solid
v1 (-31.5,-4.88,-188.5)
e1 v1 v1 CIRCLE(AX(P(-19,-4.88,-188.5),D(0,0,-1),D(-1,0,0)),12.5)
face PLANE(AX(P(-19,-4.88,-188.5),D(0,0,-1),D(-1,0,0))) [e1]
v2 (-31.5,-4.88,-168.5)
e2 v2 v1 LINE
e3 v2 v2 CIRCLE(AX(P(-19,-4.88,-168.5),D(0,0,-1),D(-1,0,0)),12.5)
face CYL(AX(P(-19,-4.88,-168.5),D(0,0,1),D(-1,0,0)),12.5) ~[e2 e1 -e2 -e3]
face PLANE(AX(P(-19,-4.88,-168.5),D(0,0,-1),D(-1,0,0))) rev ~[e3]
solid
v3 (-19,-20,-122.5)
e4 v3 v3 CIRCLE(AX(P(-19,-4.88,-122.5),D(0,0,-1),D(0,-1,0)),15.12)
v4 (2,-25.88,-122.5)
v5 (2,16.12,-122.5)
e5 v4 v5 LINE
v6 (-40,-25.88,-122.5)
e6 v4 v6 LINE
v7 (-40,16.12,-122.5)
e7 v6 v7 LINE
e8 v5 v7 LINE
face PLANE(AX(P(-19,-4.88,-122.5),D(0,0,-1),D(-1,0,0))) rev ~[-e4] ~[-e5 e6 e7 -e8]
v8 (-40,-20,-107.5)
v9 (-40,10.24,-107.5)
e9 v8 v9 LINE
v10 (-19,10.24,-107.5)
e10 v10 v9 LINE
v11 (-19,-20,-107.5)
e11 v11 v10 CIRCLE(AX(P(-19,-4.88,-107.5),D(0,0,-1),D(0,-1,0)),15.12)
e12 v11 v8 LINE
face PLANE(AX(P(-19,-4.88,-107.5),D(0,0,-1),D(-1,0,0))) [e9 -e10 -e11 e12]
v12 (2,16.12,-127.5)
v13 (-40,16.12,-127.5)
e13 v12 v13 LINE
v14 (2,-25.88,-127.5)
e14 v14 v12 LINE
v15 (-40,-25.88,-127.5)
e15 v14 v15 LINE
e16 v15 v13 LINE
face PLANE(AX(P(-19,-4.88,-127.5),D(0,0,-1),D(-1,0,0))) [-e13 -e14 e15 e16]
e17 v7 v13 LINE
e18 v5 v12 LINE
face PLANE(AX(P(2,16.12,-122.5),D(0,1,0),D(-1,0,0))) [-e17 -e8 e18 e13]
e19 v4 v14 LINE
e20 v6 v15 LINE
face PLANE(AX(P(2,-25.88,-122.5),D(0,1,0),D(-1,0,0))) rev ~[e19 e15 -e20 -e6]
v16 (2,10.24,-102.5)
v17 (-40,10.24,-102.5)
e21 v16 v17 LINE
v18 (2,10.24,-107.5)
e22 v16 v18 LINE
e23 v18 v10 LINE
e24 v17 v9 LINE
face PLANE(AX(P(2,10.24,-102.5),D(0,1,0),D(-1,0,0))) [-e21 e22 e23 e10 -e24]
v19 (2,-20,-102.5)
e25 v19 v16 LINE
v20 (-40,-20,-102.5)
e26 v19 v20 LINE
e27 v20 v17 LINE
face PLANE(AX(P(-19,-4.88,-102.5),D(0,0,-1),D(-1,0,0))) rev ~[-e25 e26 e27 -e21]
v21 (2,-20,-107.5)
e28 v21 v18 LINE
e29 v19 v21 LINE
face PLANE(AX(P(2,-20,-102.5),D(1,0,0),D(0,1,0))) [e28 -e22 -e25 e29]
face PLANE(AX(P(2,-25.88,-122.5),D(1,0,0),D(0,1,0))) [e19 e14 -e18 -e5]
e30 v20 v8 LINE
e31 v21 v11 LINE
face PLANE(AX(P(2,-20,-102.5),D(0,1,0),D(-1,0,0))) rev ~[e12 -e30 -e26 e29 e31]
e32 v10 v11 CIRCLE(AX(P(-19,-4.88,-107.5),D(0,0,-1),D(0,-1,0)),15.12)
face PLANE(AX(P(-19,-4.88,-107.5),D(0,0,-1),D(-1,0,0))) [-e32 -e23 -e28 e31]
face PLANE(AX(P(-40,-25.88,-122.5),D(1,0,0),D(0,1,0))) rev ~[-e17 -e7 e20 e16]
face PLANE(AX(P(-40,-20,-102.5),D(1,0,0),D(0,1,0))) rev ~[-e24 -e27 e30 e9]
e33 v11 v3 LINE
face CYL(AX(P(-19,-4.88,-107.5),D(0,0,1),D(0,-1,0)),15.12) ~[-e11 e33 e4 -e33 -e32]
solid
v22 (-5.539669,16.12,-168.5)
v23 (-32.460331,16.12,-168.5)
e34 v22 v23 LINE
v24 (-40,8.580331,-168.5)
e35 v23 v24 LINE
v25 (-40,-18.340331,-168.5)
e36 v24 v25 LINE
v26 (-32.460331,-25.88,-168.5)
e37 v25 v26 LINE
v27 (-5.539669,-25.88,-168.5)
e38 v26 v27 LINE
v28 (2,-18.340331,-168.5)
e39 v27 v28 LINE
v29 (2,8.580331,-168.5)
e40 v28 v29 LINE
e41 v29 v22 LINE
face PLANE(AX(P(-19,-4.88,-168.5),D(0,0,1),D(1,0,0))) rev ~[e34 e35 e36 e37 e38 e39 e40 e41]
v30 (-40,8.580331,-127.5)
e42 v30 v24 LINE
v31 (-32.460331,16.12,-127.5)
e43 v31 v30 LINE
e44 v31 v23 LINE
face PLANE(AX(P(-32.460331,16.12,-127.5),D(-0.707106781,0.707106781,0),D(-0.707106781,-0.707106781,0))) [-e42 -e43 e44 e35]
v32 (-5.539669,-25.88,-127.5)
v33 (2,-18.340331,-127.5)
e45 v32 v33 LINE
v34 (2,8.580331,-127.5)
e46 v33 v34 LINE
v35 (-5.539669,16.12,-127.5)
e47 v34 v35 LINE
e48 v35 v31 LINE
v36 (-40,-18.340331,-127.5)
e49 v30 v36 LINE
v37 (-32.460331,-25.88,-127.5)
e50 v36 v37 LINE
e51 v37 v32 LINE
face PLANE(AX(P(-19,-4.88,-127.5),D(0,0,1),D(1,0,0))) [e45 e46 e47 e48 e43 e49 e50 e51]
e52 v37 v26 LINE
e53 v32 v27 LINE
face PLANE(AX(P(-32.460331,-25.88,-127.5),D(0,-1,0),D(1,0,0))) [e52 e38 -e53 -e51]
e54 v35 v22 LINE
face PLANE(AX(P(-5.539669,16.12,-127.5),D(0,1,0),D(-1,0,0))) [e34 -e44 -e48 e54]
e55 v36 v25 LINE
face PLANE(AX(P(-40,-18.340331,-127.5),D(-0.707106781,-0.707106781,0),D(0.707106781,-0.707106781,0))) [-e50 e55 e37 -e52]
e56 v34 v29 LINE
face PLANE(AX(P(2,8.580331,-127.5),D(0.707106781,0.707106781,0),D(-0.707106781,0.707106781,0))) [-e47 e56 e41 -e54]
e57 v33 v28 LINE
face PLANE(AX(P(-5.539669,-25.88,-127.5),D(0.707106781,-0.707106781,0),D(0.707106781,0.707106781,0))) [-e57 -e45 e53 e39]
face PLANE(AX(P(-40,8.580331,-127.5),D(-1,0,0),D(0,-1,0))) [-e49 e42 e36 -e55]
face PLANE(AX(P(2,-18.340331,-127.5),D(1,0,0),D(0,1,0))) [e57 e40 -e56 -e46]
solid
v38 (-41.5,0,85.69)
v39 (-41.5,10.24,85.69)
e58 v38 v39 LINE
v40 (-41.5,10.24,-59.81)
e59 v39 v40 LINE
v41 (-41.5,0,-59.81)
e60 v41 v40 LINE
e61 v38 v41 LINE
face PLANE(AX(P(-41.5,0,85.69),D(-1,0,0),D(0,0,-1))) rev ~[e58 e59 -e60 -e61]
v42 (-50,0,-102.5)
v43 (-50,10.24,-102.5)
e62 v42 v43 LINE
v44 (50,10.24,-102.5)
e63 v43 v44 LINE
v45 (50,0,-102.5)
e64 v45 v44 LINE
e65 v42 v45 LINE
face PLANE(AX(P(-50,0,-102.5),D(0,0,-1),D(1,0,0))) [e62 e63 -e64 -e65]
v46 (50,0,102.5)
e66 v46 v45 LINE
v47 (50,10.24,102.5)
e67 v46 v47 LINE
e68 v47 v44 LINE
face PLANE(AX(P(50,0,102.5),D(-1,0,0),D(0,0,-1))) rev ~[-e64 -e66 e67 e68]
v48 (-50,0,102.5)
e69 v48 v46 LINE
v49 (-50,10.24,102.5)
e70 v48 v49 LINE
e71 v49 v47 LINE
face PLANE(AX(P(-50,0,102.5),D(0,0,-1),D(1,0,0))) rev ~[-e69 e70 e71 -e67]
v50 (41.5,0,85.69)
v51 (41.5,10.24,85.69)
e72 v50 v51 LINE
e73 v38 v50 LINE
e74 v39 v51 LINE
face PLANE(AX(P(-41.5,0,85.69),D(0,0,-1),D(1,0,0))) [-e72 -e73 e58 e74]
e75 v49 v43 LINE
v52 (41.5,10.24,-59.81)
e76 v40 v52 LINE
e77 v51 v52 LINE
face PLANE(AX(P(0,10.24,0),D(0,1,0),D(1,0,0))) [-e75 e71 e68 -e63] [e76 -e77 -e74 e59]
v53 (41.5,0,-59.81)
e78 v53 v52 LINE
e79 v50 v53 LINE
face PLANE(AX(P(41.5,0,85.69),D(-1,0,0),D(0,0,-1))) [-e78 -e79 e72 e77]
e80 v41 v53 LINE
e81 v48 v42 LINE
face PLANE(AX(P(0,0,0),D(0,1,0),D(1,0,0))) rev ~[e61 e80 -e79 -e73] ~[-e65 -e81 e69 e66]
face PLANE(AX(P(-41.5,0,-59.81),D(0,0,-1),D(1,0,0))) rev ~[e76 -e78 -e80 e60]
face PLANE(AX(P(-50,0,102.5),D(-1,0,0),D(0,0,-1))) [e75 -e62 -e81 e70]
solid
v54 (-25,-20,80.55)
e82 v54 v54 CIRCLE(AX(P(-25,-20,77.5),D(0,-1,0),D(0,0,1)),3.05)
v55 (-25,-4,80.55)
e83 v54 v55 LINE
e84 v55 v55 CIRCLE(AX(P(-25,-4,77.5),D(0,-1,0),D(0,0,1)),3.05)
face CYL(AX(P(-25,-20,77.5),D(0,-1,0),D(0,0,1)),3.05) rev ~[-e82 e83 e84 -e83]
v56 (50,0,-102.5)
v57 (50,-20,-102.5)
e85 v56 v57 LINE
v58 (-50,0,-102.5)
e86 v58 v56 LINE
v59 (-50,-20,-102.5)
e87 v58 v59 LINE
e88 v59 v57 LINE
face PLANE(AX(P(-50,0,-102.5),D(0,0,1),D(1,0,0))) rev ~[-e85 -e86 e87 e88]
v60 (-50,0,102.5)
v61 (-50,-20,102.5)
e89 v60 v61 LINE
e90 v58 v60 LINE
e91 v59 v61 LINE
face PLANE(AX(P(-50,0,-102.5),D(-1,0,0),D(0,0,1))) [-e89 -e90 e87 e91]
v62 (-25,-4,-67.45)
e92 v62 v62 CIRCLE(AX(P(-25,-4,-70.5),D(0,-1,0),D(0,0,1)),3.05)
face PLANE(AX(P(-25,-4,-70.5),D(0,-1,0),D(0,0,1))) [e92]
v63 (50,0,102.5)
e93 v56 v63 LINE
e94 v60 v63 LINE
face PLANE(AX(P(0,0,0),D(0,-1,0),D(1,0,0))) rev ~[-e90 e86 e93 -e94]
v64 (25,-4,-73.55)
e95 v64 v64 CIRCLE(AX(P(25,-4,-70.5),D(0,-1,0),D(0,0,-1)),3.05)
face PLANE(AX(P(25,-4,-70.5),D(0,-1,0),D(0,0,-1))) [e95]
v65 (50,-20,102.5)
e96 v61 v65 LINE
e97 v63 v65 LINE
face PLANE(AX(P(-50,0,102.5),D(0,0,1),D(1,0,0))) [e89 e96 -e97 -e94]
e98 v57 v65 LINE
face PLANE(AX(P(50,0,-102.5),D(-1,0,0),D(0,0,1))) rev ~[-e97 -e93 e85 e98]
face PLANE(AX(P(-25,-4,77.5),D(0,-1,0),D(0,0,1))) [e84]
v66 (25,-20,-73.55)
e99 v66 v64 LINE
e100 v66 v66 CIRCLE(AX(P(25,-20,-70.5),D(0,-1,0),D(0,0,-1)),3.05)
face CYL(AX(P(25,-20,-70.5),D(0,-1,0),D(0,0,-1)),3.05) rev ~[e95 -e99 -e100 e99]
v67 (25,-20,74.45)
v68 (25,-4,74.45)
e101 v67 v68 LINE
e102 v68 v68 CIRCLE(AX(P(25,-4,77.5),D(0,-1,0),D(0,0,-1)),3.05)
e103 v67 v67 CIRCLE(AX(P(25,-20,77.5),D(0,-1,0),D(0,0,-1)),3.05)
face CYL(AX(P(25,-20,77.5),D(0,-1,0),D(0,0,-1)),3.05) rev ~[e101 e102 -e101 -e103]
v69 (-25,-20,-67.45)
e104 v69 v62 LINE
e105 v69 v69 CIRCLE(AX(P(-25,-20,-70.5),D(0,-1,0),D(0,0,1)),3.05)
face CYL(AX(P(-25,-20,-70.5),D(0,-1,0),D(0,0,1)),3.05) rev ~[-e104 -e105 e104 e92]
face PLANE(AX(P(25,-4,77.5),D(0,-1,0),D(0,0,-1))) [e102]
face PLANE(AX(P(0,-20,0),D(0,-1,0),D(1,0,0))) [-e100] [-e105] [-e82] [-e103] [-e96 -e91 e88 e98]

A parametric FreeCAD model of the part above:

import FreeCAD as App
import Part
import Sketcher
Q = App.Units.Quantity


def add_polygon(sketch, points):
    """Adds a closed chain of lines whose ends are joined by coincident constraints."""
    first, n = sketch.GeometryCount, len(points)
    for a, b in zip(points, points[1:] + points[:1]):
        sketch.addGeometry(Part.LineSegment(App.Vector(*a, 0), App.Vector(*b, 0)), False)
    for i in range(n):
        sketch.addConstraint(Sketcher.Constraint("Coincident", first + i, 2, first + (i + 1) % n, 1))

doc = App.newDocument("Part")
params = doc.addObject("Spreadsheet::Sheet", "Params")
for row, (alias, value) in enumerate([
    ("sketch1_width", "100 mm"),
    ("sketch1_width2", "83 mm"),
    ("sketch1_height", "205 mm"),
    ("sketch1_height2", "145.5 mm"),
    ("pad1_length", "10.24 mm"),
    ("sketch2_width", "100 mm"),
    ("sketch2_height", "205 mm"),
    ("pad2_length", "20 mm"),
    ("sketch3_diameter", "6.1 mm"),
    ("pocket1_length", "16 mm"),
    ("sketch4_width", "42 mm"),
    ("sketch4_height", "30.24 mm"),
    ("pad3_length", "5 mm"),
    ("sketch5_diameter", "30.24 mm"),
    ("pad4_length", "15 mm"),
    ("sketch6_width", "42 mm"),
    ("pad5_length", "5 mm"),
    ("pad6_length", "41 mm"),
    ("sketch8_diameter", "25 mm"),
    ("pad7_length", "20 mm"),
], start=1):
    params.set(f"A{row}", alias)
    params.set(f"B{row}", "=" + value)
    params.setAlias(f"B{row}", alias)

body = doc.addObject("PartDesign::Body", "Body")

# Sketch on XZ plane
sketch1 = body.newObject("Sketcher::SketchObject", "Sketch")
sketch1.AttachmentSupport = (doc.getObject("XZ_Plane"), [""])
sketch1.MapMode = "FlatFace"
add_polygon(sketch1, [(-50, -102), (-50, 102), (50, 102), (50, -102)])  # lines 0-3
add_polygon(sketch1, [(42, 86), (-42, 86), (-42, -60), (42, -60)])  # lines 4-7
sketch1.addConstraint([
    Sketcher.Constraint("Vertical", 0),
    Sketcher.Constraint("Horizontal", 1),
    Sketcher.Constraint("Vertical", 2),
    Sketcher.Constraint("Horizontal", 3),
    Sketcher.Constraint("Horizontal", 4),
    Sketcher.Constraint("Vertical", 5),
    Sketcher.Constraint("Horizontal", 6),
    Sketcher.Constraint("Vertical", 7),
    Sketcher.Constraint("Symmetric", 0, 2, 2, 2, -1, 1),
    Sketcher.Constraint("DistanceX", 1, 1, 1, 2, Q("100 mm")),
    Sketcher.Constraint("DistanceX", 4, 2, 4, 1, Q("83 mm")),
    Sketcher.Constraint("DistanceY", 0, 1, 0, 2, Q("205 mm")),
    Sketcher.Constraint("DistanceY", 5, 2, 5, 1, Q("145.5 mm")),
    Sketcher.Constraint("DistanceX", 4, 2, -1, 1, Q("41.5 mm")),
    Sketcher.Constraint("DistanceY", -1, 1, 4, 2, Q("85.69 mm")),
])
sketch1.setExpression("Constraints[17]", "Params.sketch1_width")
sketch1.setExpression("Constraints[18]", "Params.sketch1_width2")
sketch1.setExpression("Constraints[19]", "Params.sketch1_height")
sketch1.setExpression("Constraints[20]", "Params.sketch1_height2")
pad1 = body.newObject("PartDesign::Pad", "Pad")
pad1.Profile = sketch1
pad1.setExpression("Length", "Params.pad1_length")
pad1.Reversed = True
body2 = doc.addObject("PartDesign::Body", "Body001")

# Sketch on XZ plane
sketch2 = body2.newObject("Sketcher::SketchObject", "Sketch001")
sketch2.AttachmentSupport = (doc.getObject("XZ_Plane001"), [""])
sketch2.MapMode = "FlatFace"
add_polygon(sketch2, [(-50, 102), (-50, -102), (50, -102), (50, 102)])  # lines 0-3
sketch2.addConstraint([
    Sketcher.Constraint("Vertical", 0),
    Sketcher.Constraint("Horizontal", 1),
    Sketcher.Constraint("Vertical", 2),
    Sketcher.Constraint("Horizontal", 3),
    Sketcher.Constraint("Symmetric", 0, 2, 2, 2, -1, 1),
    Sketcher.Constraint("DistanceX", 1, 1, 1, 2, Q("100 mm")),
    Sketcher.Constraint("DistanceY", 0, 2, 0, 1, Q("205 mm")),
])
sketch2.setExpression("Constraints[9]", "Params.sketch2_width")
sketch2.setExpression("Constraints[10]", "Params.sketch2_height")
pad2 = body2.newObject("PartDesign::Pad", "Pad001")
pad2.Profile = sketch2
pad2.setExpression("Length", "Params.pad2_length")

# Sketch on XZ plane
sketch3 = body2.newObject("Sketcher::SketchObject", "Sketch002")
sketch3.AttachmentSupport = (doc.getObject("XZ_Plane001"), [""])
sketch3.MapMode = "FlatFace"
sketch3.AttachmentOffset = App.Placement(App.Vector(0, 0, 20), App.Rotation())
sketch3.addGeometry([
    Part.Circle(App.Vector(25, 77.5, 0), App.Vector(0, 0, 1), 3),
    Part.Circle(App.Vector(25, -70.5, 0), App.Vector(0, 0, 1), 3),
    Part.Circle(App.Vector(-25, -70.5, 0), App.Vector(0, 0, 1), 3),
    Part.Circle(App.Vector(-25, 77.5, 0), App.Vector(0, 0, 1), 3),
], False)
sketch3.addConstraint([
    Sketcher.Constraint("Equal", 0, 1),
    Sketcher.Constraint("Equal", 1, 2),
    Sketcher.Constraint("Equal", 2, 3),
    Sketcher.Constraint("Symmetric", 1, 3, 2, 3, -2),
    Sketcher.Constraint("Symmetric", 0, 3, 3, 3, -2),
    Sketcher.Constraint("Vertical", 0, 3, 1, 3),
    Sketcher.Constraint("Diameter", 0, Q("6.1 mm")),
    Sketcher.Constraint("DistanceX", -1, 1, 0, 3, Q("25 mm")),
    Sketcher.Constraint("DistanceY", 1, 3, 0, 3, Q("148 mm")),
    Sketcher.Constraint("DistanceY", -1, 1, 0, 3, Q("77.5 mm")),
])
sketch3.setExpression("Constraints[6]", "Params.sketch3_diameter")
pocket1 = body2.newObject("PartDesign::Pocket", "Pocket")
pocket1.Profile = sketch3
pocket1.setExpression("Length", "Params.pocket1_length")
body3 = doc.addObject("PartDesign::Body", "Body002")

# Sketch on XY plane
sketch4 = body3.newObject("Sketcher::SketchObject", "Sketch003")
sketch4.AttachmentSupport = (doc.getObject("XY_Plane002"), [""])
sketch4.MapMode = "FlatFace"
sketch4.AttachmentOffset = App.Placement(App.Vector(0, 0, -102.5), App.Rotation())
add_polygon(sketch4, [(2, 10), (2, -20), (-40, -20), (-40, 10)])  # lines 0-3
sketch4.addConstraint([
    Sketcher.Constraint("Vertical", 0),
    Sketcher.Constraint("Horizontal", 1),
    Sketcher.Constraint("Vertical", 2),
    Sketcher.Constraint("Horizontal", 3),
    Sketcher.Constraint("DistanceX", 1, 2, 1, 1, Q("42 mm")),
    Sketcher.Constraint("DistanceX", -1, 1, 0, 2, Q("2 mm")),
    Sketcher.Constraint("DistanceY", 0, 2, -1, 1, Q("20 mm")),
    Sketcher.Constraint("DistanceY", 0, 2, 0, 1, Q("30.24 mm")),
])
sketch4.setExpression("Constraints[8]", "Params.sketch4_width")
sketch4.setExpression("Constraints[11]", "Params.sketch4_height")
pad3 = body3.newObject("PartDesign::Pad", "Pad002")
pad3.Profile = sketch4
pad3.setExpression("Length", "Params.pad3_length")
pad3.Reversed = True

# Sketch on XY plane
sketch5 = body3.newObject("Sketcher::SketchObject", "Sketch004")
sketch5.AttachmentSupport = (doc.getObject("XY_Plane002"), [""])
sketch5.MapMode = "FlatFace"
sketch5.AttachmentOffset = App.Placement(App.Vector(0, 0, -107.5), App.Rotation())
sketch5.addGeometry(Part.Circle(App.Vector(-19, -5, 0), App.Vector(0, 0, 1), 15), False)
sketch5.addConstraint([
    Sketcher.Constraint("Diameter", 0, Q("30.24 mm")),
    Sketcher.Constraint("DistanceX", 0, 3, -1, 1, Q("19 mm")),
    Sketcher.Constraint("DistanceY", 0, 3, -1, 1, Q("4.88 mm")),
])
sketch5.setExpression("Constraints[0]", "Params.sketch5_diameter")
pad4 = body3.newObject("PartDesign::Pad", "Pad003")
pad4.Profile = sketch5
pad4.setExpression("Length", "Params.pad4_length")
pad4.Reversed = True

# Sketch on XY plane
sketch6 = body3.newObject("Sketcher::SketchObject", "Sketch005")
sketch6.AttachmentSupport = (doc.getObject("XY_Plane002"), [""])
sketch6.MapMode = "FlatFace"
sketch6.AttachmentOffset = App.Placement(App.Vector(0, 0, -122.5), App.Rotation())
add_polygon(sketch6, [(2, 16), (2, -26), (-40, -26), (-40, 16)])  # lines 0-3
sketch6.addConstraint([
    Sketcher.Constraint("Vertical", 0),
    Sketcher.Constraint("Horizontal", 1),
    Sketcher.Constraint("Vertical", 2),
    Sketcher.Constraint("Horizontal", 3),
    Sketcher.Constraint("Equal", 3, 0),
    Sketcher.Constraint("DistanceX", 1, 2, 1, 1, Q("42 mm")),
    Sketcher.Constraint("DistanceX", -1, 1, 0, 2, Q("2 mm")),
    Sketcher.Constraint("DistanceY", 0, 2, -1, 1, Q("25.88 mm")),
])
sketch6.setExpression("Constraints[9]", "Params.sketch6_width")
pad5 = body3.newObject("PartDesign::Pad", "Pad004")
pad5.Profile = sketch6
pad5.setExpression("Length", "Params.pad5_length")
pad5.Reversed = True
body4 = doc.addObject("PartDesign::Body", "Body003")

# Sketch on XY plane
sketch7 = body4.newObject("Sketcher::SketchObject", "Sketch006")
sketch7.AttachmentSupport = (doc.getObject("XY_Plane003"), [""])
sketch7.MapMode = "FlatFace"
sketch7.AttachmentOffset = App.Placement(App.Vector(0, 0, -127.5), App.Rotation())
add_polygon(sketch7, [(-32, -26), (-40, -18), (-40, 9), (-32, 16), (-6, 16), (2, 9), (2, -18), (-6, -26)])  # lines 0-7
sketch7.addConstraint([
    Sketcher.Constraint("Vertical", 1),
    Sketcher.Constraint("Horizontal", 3),
    Sketcher.Constraint("Vertical", 5),
    Sketcher.Constraint("Horizontal", 7),
    Sketcher.Constraint("Perpendicular", 0, 2),
    Sketcher.Constraint("Perpendicular", 2, 4),
    Sketcher.Constraint("Perpendicular", 4, 6),
    Sketcher.Constraint("Horizontal", 1, 2, 4, 2),
    Sketcher.Constraint("Horizontal", 0, 2, 5, 2),
    Sketcher.Constraint("Vertical", 3, 2, 6, 2),
    Sketcher.Constraint("Vertical", 2, 2, 7, 2),
    Sketcher.Constraint("Equal", 7, 1),
    Sketcher.Constraint("DistanceX", 0, 2, -1, 1, Q("40 mm")),
    Sketcher.Constraint("DistanceX", -1, 1, 4, 2, Q("2 mm")),
    Sketcher.Constraint("DistanceY", -1, 1, 2, 2, Q("16.12 mm")),
    Sketcher.Constraint("Distance", 0, Q("10.662702 mm")),
])
pad6 = body4.newObject("PartDesign::Pad", "Pad005")
pad6.Profile = sketch7
pad6.setExpression("Length", "Params.pad6_length")
pad6.Reversed = True
body5 = doc.addObject("PartDesign::Body", "Body004")

# Sketch on XY plane
sketch8 = body5.newObject("Sketcher::SketchObject", "Sketch007")
sketch8.AttachmentSupport = (doc.getObject("XY_Plane004"), [""])
sketch8.MapMode = "FlatFace"
sketch8.AttachmentOffset = App.Placement(App.Vector(0, 0, -168.5), App.Rotation())
sketch8.addGeometry(Part.Circle(App.Vector(-19, -5, 0), App.Vector(0, 0, 1), 12), False)
sketch8.addConstraint([
    Sketcher.Constraint("Diameter", 0, Q("25 mm")),
    Sketcher.Constraint("DistanceX", 0, 3, -1, 1, Q("19 mm")),
    Sketcher.Constraint("DistanceY", 0, 3, -1, 1, Q("4.88 mm")),
])
sketch8.setExpression("Constraints[0]", "Params.sketch8_diameter")
pad7 = body5.newObject("PartDesign::Pad", "Pad006")
pad7.Profile = sketch8
pad7.setExpression("Length", "Params.pad7_length")
pad7.Reversed = True

doc.recompute()
